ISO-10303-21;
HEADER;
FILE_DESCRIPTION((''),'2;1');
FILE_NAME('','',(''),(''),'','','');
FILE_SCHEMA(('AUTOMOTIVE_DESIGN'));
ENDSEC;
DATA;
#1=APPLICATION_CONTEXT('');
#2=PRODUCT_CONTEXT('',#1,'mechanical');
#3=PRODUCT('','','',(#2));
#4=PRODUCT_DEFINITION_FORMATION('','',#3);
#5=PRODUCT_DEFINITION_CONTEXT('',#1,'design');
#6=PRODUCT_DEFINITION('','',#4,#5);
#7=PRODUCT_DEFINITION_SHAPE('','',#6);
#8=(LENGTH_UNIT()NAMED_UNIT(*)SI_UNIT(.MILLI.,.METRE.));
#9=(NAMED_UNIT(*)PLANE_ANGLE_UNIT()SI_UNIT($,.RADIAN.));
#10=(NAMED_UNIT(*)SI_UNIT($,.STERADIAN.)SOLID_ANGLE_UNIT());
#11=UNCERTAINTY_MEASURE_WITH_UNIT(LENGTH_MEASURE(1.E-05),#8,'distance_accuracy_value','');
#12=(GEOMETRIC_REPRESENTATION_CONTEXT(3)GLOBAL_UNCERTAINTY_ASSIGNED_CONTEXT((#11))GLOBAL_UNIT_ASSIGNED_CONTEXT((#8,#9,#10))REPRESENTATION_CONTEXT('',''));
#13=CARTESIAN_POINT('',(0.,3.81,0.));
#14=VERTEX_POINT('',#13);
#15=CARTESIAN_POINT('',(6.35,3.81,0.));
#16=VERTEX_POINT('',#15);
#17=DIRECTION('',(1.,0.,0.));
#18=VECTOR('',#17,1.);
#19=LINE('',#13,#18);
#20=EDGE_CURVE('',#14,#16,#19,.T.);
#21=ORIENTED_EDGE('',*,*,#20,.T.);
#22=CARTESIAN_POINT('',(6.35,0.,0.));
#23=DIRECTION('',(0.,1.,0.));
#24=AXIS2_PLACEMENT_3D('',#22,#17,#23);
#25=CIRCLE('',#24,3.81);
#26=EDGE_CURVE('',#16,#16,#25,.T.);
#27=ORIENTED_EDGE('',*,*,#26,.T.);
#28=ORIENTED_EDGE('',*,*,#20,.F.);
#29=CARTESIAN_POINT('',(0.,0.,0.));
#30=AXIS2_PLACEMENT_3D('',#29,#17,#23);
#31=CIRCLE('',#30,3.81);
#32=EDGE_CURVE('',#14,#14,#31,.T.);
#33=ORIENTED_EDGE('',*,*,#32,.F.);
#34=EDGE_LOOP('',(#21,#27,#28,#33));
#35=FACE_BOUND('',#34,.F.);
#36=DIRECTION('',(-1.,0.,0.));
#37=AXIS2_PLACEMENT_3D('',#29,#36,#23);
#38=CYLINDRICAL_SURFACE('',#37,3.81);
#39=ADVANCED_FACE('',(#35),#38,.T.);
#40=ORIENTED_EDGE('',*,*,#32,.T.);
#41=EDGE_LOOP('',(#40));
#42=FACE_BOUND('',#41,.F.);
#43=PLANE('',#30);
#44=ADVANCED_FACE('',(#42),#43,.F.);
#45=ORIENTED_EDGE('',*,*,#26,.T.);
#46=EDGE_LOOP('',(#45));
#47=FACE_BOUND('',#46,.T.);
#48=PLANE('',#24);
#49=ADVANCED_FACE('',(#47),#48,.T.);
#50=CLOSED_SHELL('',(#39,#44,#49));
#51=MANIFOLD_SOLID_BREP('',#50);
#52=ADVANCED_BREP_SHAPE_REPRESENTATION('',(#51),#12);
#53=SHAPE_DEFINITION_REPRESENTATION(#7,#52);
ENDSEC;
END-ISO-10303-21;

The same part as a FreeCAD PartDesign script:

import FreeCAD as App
import Part
import Sketcher
Q = App.Units.Quantity

doc = App.newDocument("Part")
params = doc.addObject("Spreadsheet::Sheet", "Params")
for row, (alias, value) in enumerate([
    ("sketch1_diameter", "0.3 in"),
    ("pad1_length", "0.25 in"),
], start=1):
    params.set(f"A{row}", alias)
    params.set(f"B{row}", "=" + value)
    params.setAlias(f"B{row}", alias)

body = doc.addObject("PartDesign::Body", "Body")

# Sketch on YZ plane
sketch1 = body.newObject("Sketcher::SketchObject", "Sketch")
sketch1.AttachmentSupport = (doc.getObject("YZ_Plane"), [""])
sketch1.MapMode = "FlatFace"
sketch1.addGeometry(Part.Circle(App.Vector(0, 0, 0), App.Vector(0, 0, 1), 3.8), False)
sketch1.addConstraint([
    Sketcher.Constraint("Coincident", 0, 3, -1, 1),
    Sketcher.Constraint("Diameter", 0, Q("0.3 in")),
])
sketch1.setExpression("Constraints[1]", "Params.sketch1_diameter")
pad1 = body.newObject("PartDesign::Pad", "Pad")
pad1.Profile = sketch1
pad1.setExpression("Length", "Params.pad1_length")

doc.recompute()
